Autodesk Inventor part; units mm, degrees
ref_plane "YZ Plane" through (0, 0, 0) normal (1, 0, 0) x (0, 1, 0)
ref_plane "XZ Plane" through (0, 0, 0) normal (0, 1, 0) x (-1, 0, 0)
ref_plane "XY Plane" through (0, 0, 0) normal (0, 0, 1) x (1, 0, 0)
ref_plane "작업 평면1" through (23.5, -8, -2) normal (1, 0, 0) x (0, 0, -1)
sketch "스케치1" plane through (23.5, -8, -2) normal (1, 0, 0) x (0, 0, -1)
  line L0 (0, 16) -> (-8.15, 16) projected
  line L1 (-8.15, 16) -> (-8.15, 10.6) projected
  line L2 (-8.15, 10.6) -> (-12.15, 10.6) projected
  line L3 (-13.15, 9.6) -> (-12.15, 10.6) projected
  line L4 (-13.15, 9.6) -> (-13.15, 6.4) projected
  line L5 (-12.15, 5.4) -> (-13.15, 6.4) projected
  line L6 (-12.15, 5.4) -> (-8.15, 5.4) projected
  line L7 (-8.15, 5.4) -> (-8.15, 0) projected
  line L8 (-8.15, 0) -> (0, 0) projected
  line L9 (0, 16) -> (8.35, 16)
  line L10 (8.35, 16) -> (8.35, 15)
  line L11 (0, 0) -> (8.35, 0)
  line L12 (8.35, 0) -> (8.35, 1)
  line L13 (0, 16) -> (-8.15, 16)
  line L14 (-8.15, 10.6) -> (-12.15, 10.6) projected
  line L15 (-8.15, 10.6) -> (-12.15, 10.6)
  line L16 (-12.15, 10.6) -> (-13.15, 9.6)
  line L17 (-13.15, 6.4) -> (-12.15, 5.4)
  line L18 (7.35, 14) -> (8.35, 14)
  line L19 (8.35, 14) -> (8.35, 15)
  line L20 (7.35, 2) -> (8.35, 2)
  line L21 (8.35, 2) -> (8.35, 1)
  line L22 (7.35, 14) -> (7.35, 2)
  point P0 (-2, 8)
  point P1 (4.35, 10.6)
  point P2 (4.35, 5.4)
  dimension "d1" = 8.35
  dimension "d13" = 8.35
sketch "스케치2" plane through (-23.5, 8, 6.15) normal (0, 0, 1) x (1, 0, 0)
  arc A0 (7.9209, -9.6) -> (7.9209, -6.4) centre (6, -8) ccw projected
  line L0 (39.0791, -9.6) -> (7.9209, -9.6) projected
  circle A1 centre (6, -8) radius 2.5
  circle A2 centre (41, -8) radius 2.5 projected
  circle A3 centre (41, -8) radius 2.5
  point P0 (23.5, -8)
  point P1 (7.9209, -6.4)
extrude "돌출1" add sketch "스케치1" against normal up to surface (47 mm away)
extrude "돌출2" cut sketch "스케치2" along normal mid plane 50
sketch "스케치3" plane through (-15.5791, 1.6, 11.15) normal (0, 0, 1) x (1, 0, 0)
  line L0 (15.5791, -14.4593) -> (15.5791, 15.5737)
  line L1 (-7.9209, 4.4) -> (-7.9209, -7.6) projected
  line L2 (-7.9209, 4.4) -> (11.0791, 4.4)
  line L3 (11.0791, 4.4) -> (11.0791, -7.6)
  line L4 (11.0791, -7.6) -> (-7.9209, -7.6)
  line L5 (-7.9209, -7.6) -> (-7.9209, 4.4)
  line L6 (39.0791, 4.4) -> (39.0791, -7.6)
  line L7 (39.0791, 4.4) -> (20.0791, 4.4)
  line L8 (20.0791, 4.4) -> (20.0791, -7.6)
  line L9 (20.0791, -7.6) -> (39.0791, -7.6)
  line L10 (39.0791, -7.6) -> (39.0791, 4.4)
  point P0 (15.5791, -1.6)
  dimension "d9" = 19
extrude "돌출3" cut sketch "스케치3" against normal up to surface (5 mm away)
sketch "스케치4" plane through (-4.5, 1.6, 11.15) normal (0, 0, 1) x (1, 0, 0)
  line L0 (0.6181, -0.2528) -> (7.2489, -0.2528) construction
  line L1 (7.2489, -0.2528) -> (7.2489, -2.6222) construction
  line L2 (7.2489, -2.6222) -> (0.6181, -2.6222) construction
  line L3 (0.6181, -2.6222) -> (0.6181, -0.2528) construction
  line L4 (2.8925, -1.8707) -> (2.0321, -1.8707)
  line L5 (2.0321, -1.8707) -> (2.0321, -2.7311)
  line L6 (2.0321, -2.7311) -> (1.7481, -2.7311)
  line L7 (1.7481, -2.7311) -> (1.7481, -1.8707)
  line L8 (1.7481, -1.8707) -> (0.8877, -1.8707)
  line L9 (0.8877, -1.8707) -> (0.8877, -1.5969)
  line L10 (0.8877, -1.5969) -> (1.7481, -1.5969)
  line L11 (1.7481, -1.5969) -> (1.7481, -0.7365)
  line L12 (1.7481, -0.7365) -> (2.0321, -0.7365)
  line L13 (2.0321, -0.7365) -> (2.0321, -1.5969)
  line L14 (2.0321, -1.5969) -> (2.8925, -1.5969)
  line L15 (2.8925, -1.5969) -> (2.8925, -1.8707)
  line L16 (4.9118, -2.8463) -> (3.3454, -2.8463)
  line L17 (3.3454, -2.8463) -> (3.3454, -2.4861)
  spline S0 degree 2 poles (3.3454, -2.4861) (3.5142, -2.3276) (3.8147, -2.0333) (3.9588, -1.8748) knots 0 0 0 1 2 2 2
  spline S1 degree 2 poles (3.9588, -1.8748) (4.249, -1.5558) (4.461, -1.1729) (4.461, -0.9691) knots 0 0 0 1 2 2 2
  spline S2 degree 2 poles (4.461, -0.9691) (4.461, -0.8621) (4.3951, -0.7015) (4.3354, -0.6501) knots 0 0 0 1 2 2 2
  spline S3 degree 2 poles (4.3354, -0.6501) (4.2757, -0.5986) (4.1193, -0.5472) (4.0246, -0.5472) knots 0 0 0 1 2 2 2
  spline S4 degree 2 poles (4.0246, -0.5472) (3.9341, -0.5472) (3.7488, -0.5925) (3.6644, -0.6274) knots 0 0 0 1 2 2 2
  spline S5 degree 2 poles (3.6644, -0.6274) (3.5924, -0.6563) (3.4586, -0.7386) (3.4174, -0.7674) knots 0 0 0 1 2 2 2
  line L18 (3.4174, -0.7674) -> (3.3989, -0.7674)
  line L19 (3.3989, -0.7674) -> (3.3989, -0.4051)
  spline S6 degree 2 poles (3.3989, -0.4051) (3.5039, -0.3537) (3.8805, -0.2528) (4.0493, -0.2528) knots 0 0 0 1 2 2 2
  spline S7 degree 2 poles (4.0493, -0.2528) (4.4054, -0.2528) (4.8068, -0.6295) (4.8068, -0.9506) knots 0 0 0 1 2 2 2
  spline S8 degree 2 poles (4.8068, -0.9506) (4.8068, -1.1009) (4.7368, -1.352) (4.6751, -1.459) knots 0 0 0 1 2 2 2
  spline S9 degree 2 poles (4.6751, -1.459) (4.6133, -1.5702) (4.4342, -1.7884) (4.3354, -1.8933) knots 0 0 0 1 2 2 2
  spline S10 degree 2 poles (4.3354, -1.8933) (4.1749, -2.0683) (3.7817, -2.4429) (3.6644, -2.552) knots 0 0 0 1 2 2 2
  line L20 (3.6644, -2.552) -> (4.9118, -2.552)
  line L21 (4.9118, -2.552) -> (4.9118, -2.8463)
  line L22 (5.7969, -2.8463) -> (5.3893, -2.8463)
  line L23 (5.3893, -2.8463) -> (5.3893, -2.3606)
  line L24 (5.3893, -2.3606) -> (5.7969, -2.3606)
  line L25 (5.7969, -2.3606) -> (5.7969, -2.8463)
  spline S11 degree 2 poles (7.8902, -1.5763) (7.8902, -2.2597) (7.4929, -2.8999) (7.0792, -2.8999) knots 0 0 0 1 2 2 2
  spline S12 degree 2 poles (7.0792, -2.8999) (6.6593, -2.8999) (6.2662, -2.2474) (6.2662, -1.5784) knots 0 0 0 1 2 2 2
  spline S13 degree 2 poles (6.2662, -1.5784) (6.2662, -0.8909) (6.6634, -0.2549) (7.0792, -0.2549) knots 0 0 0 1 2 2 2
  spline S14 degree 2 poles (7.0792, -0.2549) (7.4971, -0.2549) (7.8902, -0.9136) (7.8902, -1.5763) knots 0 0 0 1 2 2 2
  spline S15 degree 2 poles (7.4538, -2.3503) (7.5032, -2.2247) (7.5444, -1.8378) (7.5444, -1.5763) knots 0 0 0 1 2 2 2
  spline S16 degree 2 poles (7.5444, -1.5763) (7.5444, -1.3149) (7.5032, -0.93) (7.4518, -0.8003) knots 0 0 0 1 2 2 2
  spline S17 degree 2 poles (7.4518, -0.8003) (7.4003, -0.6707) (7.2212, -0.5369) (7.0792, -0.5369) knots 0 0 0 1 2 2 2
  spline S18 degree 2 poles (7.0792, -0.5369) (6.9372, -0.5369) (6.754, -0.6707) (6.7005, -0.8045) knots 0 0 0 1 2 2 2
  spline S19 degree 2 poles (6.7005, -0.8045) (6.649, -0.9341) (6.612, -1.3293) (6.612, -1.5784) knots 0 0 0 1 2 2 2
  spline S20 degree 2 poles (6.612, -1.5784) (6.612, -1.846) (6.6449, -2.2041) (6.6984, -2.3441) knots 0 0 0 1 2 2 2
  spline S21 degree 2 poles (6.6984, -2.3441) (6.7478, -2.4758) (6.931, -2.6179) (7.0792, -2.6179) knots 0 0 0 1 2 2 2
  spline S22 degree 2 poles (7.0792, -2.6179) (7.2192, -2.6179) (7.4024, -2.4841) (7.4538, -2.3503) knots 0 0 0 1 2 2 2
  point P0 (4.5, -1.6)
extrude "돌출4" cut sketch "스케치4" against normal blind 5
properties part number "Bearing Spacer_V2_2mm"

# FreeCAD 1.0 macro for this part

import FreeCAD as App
import Part
import Sketcher

doc = App.newDocument("Part")
body = doc.addObject("PartDesign::Body", "Body")

# Sketch on YZ plane
sketch1 = doc.addObject("Sketcher::SketchObject", "Sketch")
body.addObject(sketch1)
sketch1.AttachmentSupport = (doc.YZ_Plane, [""])
sketch1.MapMode = "FlatFace"
sketch1.AttachmentOffset = App.Placement(App.Vector(0, 0, 23.5), App.Rotation())
sketch1.addGeometry([
    Part.LineSegment(App.Vector(8, -10.3, 0), App.Vector(8, 6.2, 0)),  # 0
    Part.LineSegment(App.Vector(8, 6.2, 0), App.Vector(2.6, 6.2, 0)),  # 1
    Part.LineSegment(App.Vector(2.6, 6.2, 0), App.Vector(2.6, 10.2, 0)),  # 2
    Part.LineSegment(App.Vector(2.6, 10.2, 0), App.Vector(1.6, 11.2, 0)),  # 3
    Part.LineSegment(App.Vector(1.6, 11.2, 0), App.Vector(-1.6, 11.2, 0)),  # 4
    Part.LineSegment(App.Vector(-1.6, 11.2, 0), App.Vector(-2.6, 10.2, 0)),  # 5
    Part.LineSegment(App.Vector(-2.6, 10.2, 0), App.Vector(-2.6, 6.2, 0)),  # 6
    Part.LineSegment(App.Vector(-2.6, 6.2, 0), App.Vector(-8, 6.2, 0)),  # 7
    Part.LineSegment(App.Vector(-8, 6.2, 0), App.Vector(-8, -10.3, 0)),  # 8
    Part.LineSegment(App.Vector(-8, -10.3, 0), App.Vector(-6, -10.3, 0)),  # 9
    Part.LineSegment(App.Vector(-6, -10.3, 0), App.Vector(-6, -9.3, 0)),  # 10
    Part.LineSegment(App.Vector(-6, -9.3, 0), App.Vector(6, -9.3, 0)),  # 11
    Part.LineSegment(App.Vector(6, -9.3, 0), App.Vector(6, -10.3, 0)),  # 12
    Part.LineSegment(App.Vector(6, -10.3, 0), App.Vector(8, -10.3, 0)),  # 13
], False)
sketch1.addConstraint([
    Sketcher.Constraint("Coincident", 0, 2, 1, 1),
    Sketcher.Constraint("Coincident", 1, 2, 2, 1),
    Sketcher.Constraint("Coincident", 2, 2, 3, 1),
    Sketcher.Constraint("Coincident", 3, 2, 4, 1),
    Sketcher.Constraint("Coincident", 4, 2, 5, 1),
    Sketcher.Constraint("Coincident", 5, 2, 6, 1),
    Sketcher.Constraint("Coincident", 6, 2, 7, 1),
    Sketcher.Constraint("Coincident", 7, 2, 8, 1),
    Sketcher.Constraint("Coincident", 8, 2, 9, 1),
    Sketcher.Constraint("Coincident", 9, 2, 10, 1),
    Sketcher.Constraint("Coincident", 10, 2, 11, 1),
    Sketcher.Constraint("Coincident", 11, 2, 12, 1),
    Sketcher.Constraint("Coincident", 12, 2, 13, 1),
    Sketcher.Constraint("Coincident", 13, 2, 0, 1),
    Sketcher.Constraint("Vertical", 0),
    Sketcher.Constraint("Horizontal", 1),
    Sketcher.Constraint("Vertical", 2),
    Sketcher.Constraint("Horizontal", 4),
    Sketcher.Constraint("Vertical", 6),
    Sketcher.Constraint("Horizontal", 7),
    Sketcher.Constraint("Vertical", 8),
    Sketcher.Constraint("Horizontal", 9),
    Sketcher.Constraint("Vertical", 10),
    Sketcher.Constraint("Horizontal", 11),
    Sketcher.Constraint("Vertical", 12),
    Sketcher.Constraint("Horizontal", 13),
    Sketcher.Constraint("Symmetric", 2, 2, 5, 2, -2),
    Sketcher.Constraint("Symmetric", 0, 2, 7, 2, -2),
    Sketcher.Constraint("Symmetric", 9, 2, 12, 2, -2),
    Sketcher.Constraint("Perpendicular", 3, 5),
    Sketcher.Constraint("Equal", 3, 5),
    Sketcher.Constraint("DistanceX", 9, 1, 9, 2, 2.0),
    Sketcher.Constraint("DistanceX", 11, 1, 11, 2, 12.0),
    Sketcher.Constraint("DistanceY", 2, 1, 2, 2, 4.0),
    Sketcher.Constraint("DistanceY", 10, 1, 10, 2, 1.0),
    Sketcher.Constraint("DistanceX", 1, 2, 1, 1, 5.4),
    Sketcher.Constraint("DistanceX", 4, 2, 4, 1, 3.2),
    Sketcher.Constraint("DistanceY", 0, 1, 0, 2, 16.5),
    Sketcher.Constraint("DistanceY", -1, 1, 0, 2, 6.15),
])
pad1 = doc.addObject("PartDesign::Pad", "Pad")
body.addObject(pad1)
pad1.Profile = sketch1
pad1.Length = 47
pad1.Reversed = True

# Sketch on XY plane
sketch2 = doc.addObject("Sketcher::SketchObject", "Sketch001")
body.addObject(sketch2)
sketch2.AttachmentSupport = (doc.XY_Plane, [""])
sketch2.MapMode = "FlatFace"
sketch2.AttachmentOffset = App.Placement(App.Vector(0, 0, 6.15), App.Rotation())
sketch2.addGeometry([
    Part.Circle(App.Vector(-17.5, 0, 0), App.Vector(0, 0, 1), 2.5),
    Part.Circle(App.Vector(17.5, 0, 0), App.Vector(0, 0, 1), 2.5),
], False)
sketch2.addConstraint([
    Sketcher.Constraint("Equal", 0, 1),
    Sketcher.Constraint("Symmetric", 0, 3, 1, 3, -1, 1),
    Sketcher.Constraint("PointOnObject", 0, 3, -1),
    Sketcher.Constraint("Diameter", 0, 5.0),
    Sketcher.Constraint("DistanceX", 0, 3, 1, 3, 35.0),
])
pocket1 = doc.addObject("PartDesign::Pocket", "Pocket")
body.addObject(pocket1)
pocket1.Profile = sketch2
pocket1.Length = 50
pocket1.Midplane = True

# Sketch on XY plane
sketch3 = doc.addObject("Sketcher::SketchObject", "Sketch002")
body.addObject(sketch3)
sketch3.AttachmentSupport = (doc.XY_Plane, [""])
sketch3.MapMode = "FlatFace"
sketch3.AttachmentOffset = App.Placement(App.Vector(0, 0, 11.15), App.Rotation())
sketch3.addGeometry([
    Part.LineSegment(App.Vector(-4, 6, 0), App.Vector(-24, 6, 0)),  # 0
    Part.LineSegment(App.Vector(-24, 6, 0), App.Vector(-24, -6, 0)),  # 1
    Part.LineSegment(App.Vector(-24, -6, 0), App.Vector(-4, -6, 0)),  # 2
    Part.LineSegment(App.Vector(-4, -6, 0), App.Vector(-4, 6, 0)),  # 3
    Part.LineSegment(App.Vector(24, -6, 0), App.Vector(24, 6, 0)),  # 4
    Part.LineSegment(App.Vector(24, 6, 0), App.Vector(4, 6, 0)),  # 5
    Part.LineSegment(App.Vector(4, 6, 0), App.Vector(4, -6, 0)),  # 6
    Part.LineSegment(App.Vector(4, -6, 0), App.Vector(24, -6, 0)),  # 7
], False)
sketch3.addConstraint([
    Sketcher.Constraint("Coincident", 0, 2, 1, 1),
    Sketcher.Constraint("Coincident", 1, 2, 2, 1),
    Sketcher.Constraint("Coincident", 2, 2, 3, 1),
    Sketcher.Constraint("Coincident", 3, 2, 0, 1),
    Sketcher.Constraint("Coincident", 4, 2, 5, 1),
    Sketcher.Constraint("Coincident", 5, 2, 6, 1),
    Sketcher.Constraint("Coincident", 6, 2, 7, 1),
    Sketcher.Constraint("Coincident", 7, 2, 4, 1),
    Sketcher.Constraint("Horizontal", 0),
    Sketcher.Constraint("Vertical", 1),
    Sketcher.Constraint("Horizontal", 2),
    Sketcher.Constraint("Vertical", 3),
    Sketcher.Constraint("Vertical", 4),
    Sketcher.Constraint("Horizontal", 5),
    Sketcher.Constraint("Vertical", 6),
    Sketcher.Constraint("Horizontal", 7),
    Sketcher.Constraint("Symmetric", 1, 2, 4, 2, -1, 1),
    Sketcher.Constraint("Symmetric", 3, 2, 6, 2, -1, 1),
    Sketcher.Constraint("Horizontal", 3, 2, 4, 2),
    Sketcher.Constraint("DistanceX", 0, 2, 0, 1, 19.0),
    Sketcher.Constraint("DistanceY", 1, 2, 1, 1, 12.0),
    Sketcher.Constraint("DistanceX", 3, 2, 4, 2, 28.0),
])
pocket2 = doc.addObject("PartDesign::Pocket", "Pocket001")
body.addObject(pocket2)
pocket2.Profile = sketch3
pocket2.Length = 5

# Sketch on XY plane
sketch4 = doc.addObject("Sketcher::SketchObject", "Sketch003")
body.addObject(sketch4)
sketch4.AttachmentSupport = (doc.XY_Plane, [""])
sketch4.MapMode = "FlatFace"
sketch4.AttachmentOffset = App.Placement(App.Vector(0, 0, 11.15), App.Rotation())
sketch4.addGeometry([
    Part.LineSegment(App.Vector(-2.4679, -0.2707, 0), App.Vector(-1.6075, -0.2707, 0)),  # 0
    Part.LineSegment(App.Vector(-1.6075, -0.2707, 0), App.Vector(-1.6075, 0.0031, 0)),  # 1
    Part.LineSegment(App.Vector(-1.6075, 0.0031, 0), App.Vector(-2.4679, 0.0031, 0)),  # 2
    Part.LineSegment(App.Vector(-2.4679, 0.0031, 0), App.Vector(-2.4679, 0.8635, 0)),  # 3
    Part.LineSegment(App.Vector(-2.4679, 0.8635, 0), App.Vector(-2.7519, 0.8635, 0)),  # 4
    Part.LineSegment(App.Vector(-2.7519, 0.8635, 0), App.Vector(-2.7519, 0.0031, 0)),  # 5
    Part.LineSegment(App.Vector(-2.7519, 0.0031, 0), App.Vector(-3.6123, 0.0031, 0)),  # 6
    Part.LineSegment(App.Vector(-3.6123, 0.0031, 0), App.Vector(-3.6123, -0.2707, 0)),  # 7
    Part.LineSegment(App.Vector(-3.6123, -0.2707, 0), App.Vector(-2.7519, -0.2707, 0)),  # 8
    Part.LineSegment(App.Vector(-2.7519, -0.2707, 0), App.Vector(-2.7519, -1.1311, 0)),  # 9
    Part.LineSegment(App.Vector(-2.7519, -1.1311, 0), App.Vector(-2.4679, -1.1311, 0)),  # 10
    Part.LineSegment(App.Vector(-2.4679, -1.1311, 0), App.Vector(-2.4679, -0.2707, 0)),  # 11
    Part.LineSegment(App.Vector(-1.1546, -1.2463, 0), App.Vector(0.4118, -1.2463, 0)),  # 12
    Part.LineSegment(App.Vector(0.4118, -1.2463, 0), App.Vector(0.4118, -0.952, 0)),  # 13
    Part.LineSegment(App.Vector(0.4118, -0.952, 0), App.Vector(-0.8356, -0.952, 0)),  # 14
    Part.BSplineCurve([App.Vector(-0.1646, -0.2933, 0), App.Vector(-0.3251, -0.4683, 0), App.Vector(-0.7183, -0.8429, 0), App.Vector(-0.8356, -0.952, 0)], [3, 1, 3], [0, 1, 2], False, 2, [1, 1, 1, 1], False),  # 15
    Part.BSplineCurve([App.Vector(0.1751, 0.141, 0), App.Vector(0.1133, 0.0298, 0), App.Vector(-0.0658, -0.1884, 0), App.Vector(-0.1646, -0.2933, 0)], [3, 1, 3], [0, 1, 2], False, 2, [1, 1, 1, 1], False),  # 16
    Part.BSplineCurve([App.Vector(0.3068, 0.6494, 0), App.Vector(0.3068, 0.4991, 0), App.Vector(0.2368, 0.248, 0), App.Vector(0.1751, 0.141, 0)], [3, 1, 3], [0, 1, 2], False, 2, [1, 1, 1, 1], False),  # 17
    Part.BSplineCurve([App.Vector(-0.4507, 1.3472, 0), App.Vector(-0.0946, 1.3472, 0), App.Vector(0.3068, 0.9705, 0), App.Vector(0.3068, 0.6494, 0)], [3, 1, 3], [0, 1, 2], False, 2, [1, 1, 1, 1], False),  # 18
    Part.BSplineCurve([App.Vector(-1.1011, 1.1949, 0), App.Vector(-0.9961, 1.2463, 0), App.Vector(-0.6195, 1.3472, 0), App.Vector(-0.4507, 1.3472, 0)], [3, 1, 3], [0, 1, 2], False, 2, [1, 1, 1, 1], False),  # 19
    Part.LineSegment(App.Vector(-1.1011, 1.1949, 0), App.Vector(-1.1011, 0.8326, 0)),  # 20
    Part.LineSegment(App.Vector(-1.1011, 0.8326, 0), App.Vector(-1.0826, 0.8326, 0)),  # 21
    Part.BSplineCurve([App.Vector(-0.8356, 0.9726, 0), App.Vector(-0.9076, 0.9437, 0), App.Vector(-1.0414, 0.8614, 0), App.Vector(-1.0826, 0.8326, 0)], [3, 1, 3], [0, 1, 2], False, 2, [1, 1, 1, 1], False),  # 22
    Part.BSplineCurve([App.Vector(-0.4754, 1.0528, 0), App.Vector(-0.5659, 1.0528, 0), App.Vector(-0.7512, 1.0075, 0), App.Vector(-0.8356, 0.9726, 0)], [3, 1, 3], [0, 1, 2], False, 2, [1, 1, 1, 1], False),  # 23
    Part.BSplineCurve([App.Vector(-0.1646, 0.9499, 0), App.Vector(-0.2243, 1.0014, 0), App.Vector(-0.3807, 1.0528, 0), App.Vector(-0.4754, 1.0528, 0)], [3, 1, 3], [0, 1, 2], False, 2, [1, 1, 1, 1], False),  # 24
    Part.BSplineCurve([App.Vector(-0.039, 0.6309, 0), App.Vector(-0.039, 0.7379, 0), App.Vector(-0.1049, 0.8985, 0), App.Vector(-0.1646, 0.9499, 0)], [3, 1, 3], [0, 1, 2], False, 2, [1, 1, 1, 1], False),  # 25
    Part.BSplineCurve([App.Vector(-0.5412, -0.2748, 0), App.Vector(-0.251, 0.0442, 0), App.Vector(-0.039, 0.4271, 0), App.Vector(-0.039, 0.6309, 0)], [3, 1, 3], [0, 1, 2], False, 2, [1, 1, 1, 1], False),  # 26
    Part.BSplineCurve([App.Vector(-1.1546, -0.8861, 0), App.Vector(-0.9858, -0.7276, 0), App.Vector(-0.6853, -0.4333, 0), App.Vector(-0.5412, -0.2748, 0)], [3, 1, 3], [0, 1, 2], False, 2, [1, 1, 1, 1], False),  # 27
    Part.LineSegment(App.Vector(-1.1546, -0.8861, 0), App.Vector(-1.1546, -1.2463, 0)),  # 28
    Part.LineSegment(App.Vector(0.8893, -1.2463, 0), App.Vector(1.2969, -1.2463, 0)),  # 29
    Part.LineSegment(App.Vector(1.2969, -1.2463, 0), App.Vector(1.2969, -0.7606, 0)),  # 30
    Part.LineSegment(App.Vector(1.2969, -0.7606, 0), App.Vector(0.8893, -0.7606, 0)),  # 31
    Part.LineSegment(App.Vector(0.8893, -0.7606, 0), App.Vector(0.8893, -1.2463, 0)),  # 32
    Part.BSplineCurve([App.Vector(3.3902, 0.0237, 0), App.Vector(3.3902, -0.6597, 0), App.Vector(2.9929, -1.2999, 0), App.Vector(2.5792, -1.2999, 0)], [3, 1, 3], [0, 1, 2], False, 2, [1, 1, 1, 1], False),  # 33
    Part.BSplineCurve([App.Vector(2.5792, 1.3451, 0), App.Vector(2.9971, 1.3451, 0), App.Vector(3.3902, 0.6864, 0), App.Vector(3.3902, 0.0237, 0)], [3, 1, 3], [0, 1, 2], False, 2, [1, 1, 1, 1], False),  # 34
    Part.BSplineCurve([App.Vector(1.7662, 0.0216, 0), App.Vector(1.7662, 0.7091, 0), App.Vector(2.1634, 1.3451, 0), App.Vector(2.5792, 1.3451, 0)], [3, 1, 3], [0, 1, 2], False, 2, [1, 1, 1, 1], False),  # 35
    Part.BSplineCurve([App.Vector(2.5792, -1.2999, 0), App.Vector(2.1593, -1.2999, 0), App.Vector(1.7662, -0.6474, 0), App.Vector(1.7662, 0.0216, 0)], [3, 1, 3], [0, 1, 2], False, 2, [1, 1, 1, 1], False),  # 36
    Part.BSplineCurve([App.Vector(2.9538, -0.7503, 0), App.Vector(3.0032, -0.6247, 0), App.Vector(3.0444, -0.2378, 0), App.Vector(3.0444, 0.0237, 0)], [3, 1, 3], [0, 1, 2], False, 2, [1, 1, 1, 1], False),  # 37
    Part.BSplineCurve([App.Vector(2.5792, -1.0179, 0), App.Vector(2.7192, -1.0179, 0), App.Vector(2.9024, -0.8841, 0), App.Vector(2.9538, -0.7503, 0)], [3, 1, 3], [0, 1, 2], False, 2, [1, 1, 1, 1], False),  # 38
    Part.BSplineCurve([App.Vector(2.1984, -0.7441, 0), App.Vector(2.2478, -0.8758, 0), App.Vector(2.431, -1.0179, 0), App.Vector(2.5792, -1.0179, 0)], [3, 1, 3], [0, 1, 2], False, 2, [1, 1, 1, 1], False),  # 39
    Part.BSplineCurve([App.Vector(2.112, 0.0216, 0), App.Vector(2.112, -0.246, 0), App.Vector(2.1449, -0.6041, 0), App.Vector(2.1984, -0.7441, 0)], [3, 1, 3], [0, 1, 2], False, 2, [1, 1, 1, 1], False),  # 40
    Part.BSplineCurve([App.Vector(2.2005, 0.7955, 0), App.Vector(2.149, 0.6659, 0), App.Vector(2.112, 0.2707, 0), App.Vector(2.112, 0.0216, 0)], [3, 1, 3], [0, 1, 2], False, 2, [1, 1, 1, 1], False),  # 41
    Part.BSplineCurve([App.Vector(2.5792, 1.0631, 0), App.Vector(2.4372, 1.0631, 0), App.Vector(2.254, 0.9293, 0), App.Vector(2.2005, 0.7955, 0)], [3, 1, 3], [0, 1, 2], False, 2, [1, 1, 1, 1], False),  # 42
    Part.BSplineCurve([App.Vector(2.9518, 0.7997, 0), App.Vector(2.9003, 0.9293, 0), App.Vector(2.7212, 1.0631, 0), App.Vector(2.5792, 1.0631, 0)], [3, 1, 3], [0, 1, 2], False, 2, [1, 1, 1, 1], False),  # 43
    Part.BSplineCurve([App.Vector(3.0444, 0.0237, 0), App.Vector(3.0444, 0.2851, 0), App.Vector(3.0032, 0.67, 0), App.Vector(2.9518, 0.7997, 0)], [3, 1, 3], [0, 1, 2], False, 2, [1, 1, 1, 1], False),  # 44
], False)
sketch4.addConstraint([
    Sketcher.Constraint("Block", 15),
    Sketcher.Constraint("Block", 16),
    Sketcher.Constraint("Block", 17),
    Sketcher.Constraint("Block", 18),
    Sketcher.Constraint("Block", 19),
    Sketcher.Constraint("Block", 22),
    Sketcher.Constraint("Block", 23),
    Sketcher.Constraint("Block", 24),
    Sketcher.Constraint("Block", 25),
    Sketcher.Constraint("Block", 26),
    Sketcher.Constraint("Block", 27),
    Sketcher.Constraint("Block", 33),
    Sketcher.Constraint("Block", 34),
    Sketcher.Constraint("Block", 35),
    Sketcher.Constraint("Block", 36),
    Sketcher.Constraint("Block", 37),
    Sketcher.Constraint("Block", 38),
    Sketcher.Constraint("Block", 39),
    Sketcher.Constraint("Block", 40),
    Sketcher.Constraint("Block", 41),
    Sketcher.Constraint("Block", 42),
    Sketcher.Constraint("Block", 43),
    Sketcher.Constraint("Block", 44),
    Sketcher.Constraint("Coincident", 0, 2, 1, 1),
    Sketcher.Constraint("Coincident", 1, 2, 2, 1),
    Sketcher.Constraint("Coincident", 2, 2, 3, 1),
    Sketcher.Constraint("Coincident", 3, 2, 4, 1),
    Sketcher.Constraint("Coincident", 4, 2, 5, 1),
    Sketcher.Constraint("Coincident", 5, 2, 6, 1),
    Sketcher.Constraint("Coincident", 6, 2, 7, 1),
    Sketcher.Constraint("Coincident", 7, 2, 8, 1),
    Sketcher.Constraint("Coincident", 8, 2, 9, 1),
    Sketcher.Constraint("Coincident", 9, 2, 10, 1),
    Sketcher.Constraint("Coincident", 10, 2, 11, 1),
    Sketcher.Constraint("Coincident", 11, 2, 0, 1),
    Sketcher.Constraint("Coincident", 12, 2, 13, 1),
    Sketcher.Constraint("Coincident", 13, 2, 14, 1),
    Sketcher.Constraint("Coincident", 14, 2, 15, 2),
    Sketcher.Constraint("Coincident", 19, 1, 20, 1),
    Sketcher.Constraint("Coincident", 20, 2, 21, 1),
    Sketcher.Constraint("Coincident", 21, 2, 22, 2),
    Sketcher.Constraint("Coincident", 27, 1, 28, 1),
    Sketcher.Constraint("Coincident", 28, 2, 12, 1),
    Sketcher.Constraint("Coincident", 29, 2, 30, 1),
    Sketcher.Constraint("Coincident", 30, 2, 31, 1),
    Sketcher.Constraint("Coincident", 31, 2, 32, 1),
    Sketcher.Constraint("Coincident", 32, 2, 29, 1),
    Sketcher.Constraint("Horizontal", 0),
    Sketcher.Constraint("Vertical", 1),
    Sketcher.Constraint("Horizontal", 2),
    Sketcher.Constraint("Vertical", 3),
    Sketcher.Constraint("Horizontal", 4),
    Sketcher.Constraint("Vertical", 5),
    Sketcher.Constraint("Horizontal", 6),
    Sketcher.Constraint("Vertical", 7),
    Sketcher.Constraint("Horizontal", 8),
    Sketcher.Constraint("Vertical", 9),
    Sketcher.Constraint("Horizontal", 10),
    Sketcher.Constraint("Vertical", 11),
    Sketcher.Constraint("Horizontal", 12),
    Sketcher.Constraint("Vertical", 13),
    Sketcher.Constraint("Horizontal", 14),
    Sketcher.Constraint("Vertical", 20),
    Sketcher.Constraint("Horizontal", 21),
    Sketcher.Constraint("Vertical", 28),
    Sketcher.Constraint("Horizontal", 29),
    Sketcher.Constraint("Vertical", 30),
    Sketcher.Constraint("Horizontal", 31),
    Sketcher.Constraint("Vertical", 32),
    Sketcher.Constraint("Horizontal", 2, 2, 5, 2),
    Sketcher.Constraint("Horizontal", 0, 2, 7, 2),
    Sketcher.Constraint("Horizontal", 28, 2, 29, 2),
    Sketcher.Constraint("Vertical", 5, 2, 8, 2),
    Sketcher.Constraint("Vertical", 3, 2, 10, 2),
    Sketcher.Constraint("Equal", 2, 6),
    Sketcher.Constraint("Equal", 8, 3),
    Sketcher.Constraint("Equal", 5, 9),
    Sketcher.Constraint("DistanceX", 4, 2, 4, 1, 0.284),
    Sketcher.Constraint("DistanceX", 0, 1, 0, 2, 0.8604),
    Sketcher.Constraint("DistanceX", 12, 1, 12, 2, 1.5664),
    Sketcher.Constraint("DistanceX", 29, 1, 29, 2, 0.4076),
    Sketcher.Constraint("DistanceY", 1, 1, 1, 2, 0.2738),
    Sketcher.Constraint("DistanceY", 13, 1, 13, 2, 0.2943),
    Sketcher.Constraint("DistanceY", 30, 1, 30, 2, 0.4857),
    Sketcher.Constraint("DistanceY", -1, 1, 1, 2, 0.003),
    Sketcher.Constraint("DistanceX", 2, 2, -1, 1, 2.468),
    Sketcher.Constraint("DistanceX", -1, 1, 29, 2, 1.297),
])
pocket3 = doc.addObject("PartDesign::Pocket", "Pocket002")
body.addObject(pocket3)
pocket3.Profile = sketch4
pocket3.Length = 5

doc.recompute()
